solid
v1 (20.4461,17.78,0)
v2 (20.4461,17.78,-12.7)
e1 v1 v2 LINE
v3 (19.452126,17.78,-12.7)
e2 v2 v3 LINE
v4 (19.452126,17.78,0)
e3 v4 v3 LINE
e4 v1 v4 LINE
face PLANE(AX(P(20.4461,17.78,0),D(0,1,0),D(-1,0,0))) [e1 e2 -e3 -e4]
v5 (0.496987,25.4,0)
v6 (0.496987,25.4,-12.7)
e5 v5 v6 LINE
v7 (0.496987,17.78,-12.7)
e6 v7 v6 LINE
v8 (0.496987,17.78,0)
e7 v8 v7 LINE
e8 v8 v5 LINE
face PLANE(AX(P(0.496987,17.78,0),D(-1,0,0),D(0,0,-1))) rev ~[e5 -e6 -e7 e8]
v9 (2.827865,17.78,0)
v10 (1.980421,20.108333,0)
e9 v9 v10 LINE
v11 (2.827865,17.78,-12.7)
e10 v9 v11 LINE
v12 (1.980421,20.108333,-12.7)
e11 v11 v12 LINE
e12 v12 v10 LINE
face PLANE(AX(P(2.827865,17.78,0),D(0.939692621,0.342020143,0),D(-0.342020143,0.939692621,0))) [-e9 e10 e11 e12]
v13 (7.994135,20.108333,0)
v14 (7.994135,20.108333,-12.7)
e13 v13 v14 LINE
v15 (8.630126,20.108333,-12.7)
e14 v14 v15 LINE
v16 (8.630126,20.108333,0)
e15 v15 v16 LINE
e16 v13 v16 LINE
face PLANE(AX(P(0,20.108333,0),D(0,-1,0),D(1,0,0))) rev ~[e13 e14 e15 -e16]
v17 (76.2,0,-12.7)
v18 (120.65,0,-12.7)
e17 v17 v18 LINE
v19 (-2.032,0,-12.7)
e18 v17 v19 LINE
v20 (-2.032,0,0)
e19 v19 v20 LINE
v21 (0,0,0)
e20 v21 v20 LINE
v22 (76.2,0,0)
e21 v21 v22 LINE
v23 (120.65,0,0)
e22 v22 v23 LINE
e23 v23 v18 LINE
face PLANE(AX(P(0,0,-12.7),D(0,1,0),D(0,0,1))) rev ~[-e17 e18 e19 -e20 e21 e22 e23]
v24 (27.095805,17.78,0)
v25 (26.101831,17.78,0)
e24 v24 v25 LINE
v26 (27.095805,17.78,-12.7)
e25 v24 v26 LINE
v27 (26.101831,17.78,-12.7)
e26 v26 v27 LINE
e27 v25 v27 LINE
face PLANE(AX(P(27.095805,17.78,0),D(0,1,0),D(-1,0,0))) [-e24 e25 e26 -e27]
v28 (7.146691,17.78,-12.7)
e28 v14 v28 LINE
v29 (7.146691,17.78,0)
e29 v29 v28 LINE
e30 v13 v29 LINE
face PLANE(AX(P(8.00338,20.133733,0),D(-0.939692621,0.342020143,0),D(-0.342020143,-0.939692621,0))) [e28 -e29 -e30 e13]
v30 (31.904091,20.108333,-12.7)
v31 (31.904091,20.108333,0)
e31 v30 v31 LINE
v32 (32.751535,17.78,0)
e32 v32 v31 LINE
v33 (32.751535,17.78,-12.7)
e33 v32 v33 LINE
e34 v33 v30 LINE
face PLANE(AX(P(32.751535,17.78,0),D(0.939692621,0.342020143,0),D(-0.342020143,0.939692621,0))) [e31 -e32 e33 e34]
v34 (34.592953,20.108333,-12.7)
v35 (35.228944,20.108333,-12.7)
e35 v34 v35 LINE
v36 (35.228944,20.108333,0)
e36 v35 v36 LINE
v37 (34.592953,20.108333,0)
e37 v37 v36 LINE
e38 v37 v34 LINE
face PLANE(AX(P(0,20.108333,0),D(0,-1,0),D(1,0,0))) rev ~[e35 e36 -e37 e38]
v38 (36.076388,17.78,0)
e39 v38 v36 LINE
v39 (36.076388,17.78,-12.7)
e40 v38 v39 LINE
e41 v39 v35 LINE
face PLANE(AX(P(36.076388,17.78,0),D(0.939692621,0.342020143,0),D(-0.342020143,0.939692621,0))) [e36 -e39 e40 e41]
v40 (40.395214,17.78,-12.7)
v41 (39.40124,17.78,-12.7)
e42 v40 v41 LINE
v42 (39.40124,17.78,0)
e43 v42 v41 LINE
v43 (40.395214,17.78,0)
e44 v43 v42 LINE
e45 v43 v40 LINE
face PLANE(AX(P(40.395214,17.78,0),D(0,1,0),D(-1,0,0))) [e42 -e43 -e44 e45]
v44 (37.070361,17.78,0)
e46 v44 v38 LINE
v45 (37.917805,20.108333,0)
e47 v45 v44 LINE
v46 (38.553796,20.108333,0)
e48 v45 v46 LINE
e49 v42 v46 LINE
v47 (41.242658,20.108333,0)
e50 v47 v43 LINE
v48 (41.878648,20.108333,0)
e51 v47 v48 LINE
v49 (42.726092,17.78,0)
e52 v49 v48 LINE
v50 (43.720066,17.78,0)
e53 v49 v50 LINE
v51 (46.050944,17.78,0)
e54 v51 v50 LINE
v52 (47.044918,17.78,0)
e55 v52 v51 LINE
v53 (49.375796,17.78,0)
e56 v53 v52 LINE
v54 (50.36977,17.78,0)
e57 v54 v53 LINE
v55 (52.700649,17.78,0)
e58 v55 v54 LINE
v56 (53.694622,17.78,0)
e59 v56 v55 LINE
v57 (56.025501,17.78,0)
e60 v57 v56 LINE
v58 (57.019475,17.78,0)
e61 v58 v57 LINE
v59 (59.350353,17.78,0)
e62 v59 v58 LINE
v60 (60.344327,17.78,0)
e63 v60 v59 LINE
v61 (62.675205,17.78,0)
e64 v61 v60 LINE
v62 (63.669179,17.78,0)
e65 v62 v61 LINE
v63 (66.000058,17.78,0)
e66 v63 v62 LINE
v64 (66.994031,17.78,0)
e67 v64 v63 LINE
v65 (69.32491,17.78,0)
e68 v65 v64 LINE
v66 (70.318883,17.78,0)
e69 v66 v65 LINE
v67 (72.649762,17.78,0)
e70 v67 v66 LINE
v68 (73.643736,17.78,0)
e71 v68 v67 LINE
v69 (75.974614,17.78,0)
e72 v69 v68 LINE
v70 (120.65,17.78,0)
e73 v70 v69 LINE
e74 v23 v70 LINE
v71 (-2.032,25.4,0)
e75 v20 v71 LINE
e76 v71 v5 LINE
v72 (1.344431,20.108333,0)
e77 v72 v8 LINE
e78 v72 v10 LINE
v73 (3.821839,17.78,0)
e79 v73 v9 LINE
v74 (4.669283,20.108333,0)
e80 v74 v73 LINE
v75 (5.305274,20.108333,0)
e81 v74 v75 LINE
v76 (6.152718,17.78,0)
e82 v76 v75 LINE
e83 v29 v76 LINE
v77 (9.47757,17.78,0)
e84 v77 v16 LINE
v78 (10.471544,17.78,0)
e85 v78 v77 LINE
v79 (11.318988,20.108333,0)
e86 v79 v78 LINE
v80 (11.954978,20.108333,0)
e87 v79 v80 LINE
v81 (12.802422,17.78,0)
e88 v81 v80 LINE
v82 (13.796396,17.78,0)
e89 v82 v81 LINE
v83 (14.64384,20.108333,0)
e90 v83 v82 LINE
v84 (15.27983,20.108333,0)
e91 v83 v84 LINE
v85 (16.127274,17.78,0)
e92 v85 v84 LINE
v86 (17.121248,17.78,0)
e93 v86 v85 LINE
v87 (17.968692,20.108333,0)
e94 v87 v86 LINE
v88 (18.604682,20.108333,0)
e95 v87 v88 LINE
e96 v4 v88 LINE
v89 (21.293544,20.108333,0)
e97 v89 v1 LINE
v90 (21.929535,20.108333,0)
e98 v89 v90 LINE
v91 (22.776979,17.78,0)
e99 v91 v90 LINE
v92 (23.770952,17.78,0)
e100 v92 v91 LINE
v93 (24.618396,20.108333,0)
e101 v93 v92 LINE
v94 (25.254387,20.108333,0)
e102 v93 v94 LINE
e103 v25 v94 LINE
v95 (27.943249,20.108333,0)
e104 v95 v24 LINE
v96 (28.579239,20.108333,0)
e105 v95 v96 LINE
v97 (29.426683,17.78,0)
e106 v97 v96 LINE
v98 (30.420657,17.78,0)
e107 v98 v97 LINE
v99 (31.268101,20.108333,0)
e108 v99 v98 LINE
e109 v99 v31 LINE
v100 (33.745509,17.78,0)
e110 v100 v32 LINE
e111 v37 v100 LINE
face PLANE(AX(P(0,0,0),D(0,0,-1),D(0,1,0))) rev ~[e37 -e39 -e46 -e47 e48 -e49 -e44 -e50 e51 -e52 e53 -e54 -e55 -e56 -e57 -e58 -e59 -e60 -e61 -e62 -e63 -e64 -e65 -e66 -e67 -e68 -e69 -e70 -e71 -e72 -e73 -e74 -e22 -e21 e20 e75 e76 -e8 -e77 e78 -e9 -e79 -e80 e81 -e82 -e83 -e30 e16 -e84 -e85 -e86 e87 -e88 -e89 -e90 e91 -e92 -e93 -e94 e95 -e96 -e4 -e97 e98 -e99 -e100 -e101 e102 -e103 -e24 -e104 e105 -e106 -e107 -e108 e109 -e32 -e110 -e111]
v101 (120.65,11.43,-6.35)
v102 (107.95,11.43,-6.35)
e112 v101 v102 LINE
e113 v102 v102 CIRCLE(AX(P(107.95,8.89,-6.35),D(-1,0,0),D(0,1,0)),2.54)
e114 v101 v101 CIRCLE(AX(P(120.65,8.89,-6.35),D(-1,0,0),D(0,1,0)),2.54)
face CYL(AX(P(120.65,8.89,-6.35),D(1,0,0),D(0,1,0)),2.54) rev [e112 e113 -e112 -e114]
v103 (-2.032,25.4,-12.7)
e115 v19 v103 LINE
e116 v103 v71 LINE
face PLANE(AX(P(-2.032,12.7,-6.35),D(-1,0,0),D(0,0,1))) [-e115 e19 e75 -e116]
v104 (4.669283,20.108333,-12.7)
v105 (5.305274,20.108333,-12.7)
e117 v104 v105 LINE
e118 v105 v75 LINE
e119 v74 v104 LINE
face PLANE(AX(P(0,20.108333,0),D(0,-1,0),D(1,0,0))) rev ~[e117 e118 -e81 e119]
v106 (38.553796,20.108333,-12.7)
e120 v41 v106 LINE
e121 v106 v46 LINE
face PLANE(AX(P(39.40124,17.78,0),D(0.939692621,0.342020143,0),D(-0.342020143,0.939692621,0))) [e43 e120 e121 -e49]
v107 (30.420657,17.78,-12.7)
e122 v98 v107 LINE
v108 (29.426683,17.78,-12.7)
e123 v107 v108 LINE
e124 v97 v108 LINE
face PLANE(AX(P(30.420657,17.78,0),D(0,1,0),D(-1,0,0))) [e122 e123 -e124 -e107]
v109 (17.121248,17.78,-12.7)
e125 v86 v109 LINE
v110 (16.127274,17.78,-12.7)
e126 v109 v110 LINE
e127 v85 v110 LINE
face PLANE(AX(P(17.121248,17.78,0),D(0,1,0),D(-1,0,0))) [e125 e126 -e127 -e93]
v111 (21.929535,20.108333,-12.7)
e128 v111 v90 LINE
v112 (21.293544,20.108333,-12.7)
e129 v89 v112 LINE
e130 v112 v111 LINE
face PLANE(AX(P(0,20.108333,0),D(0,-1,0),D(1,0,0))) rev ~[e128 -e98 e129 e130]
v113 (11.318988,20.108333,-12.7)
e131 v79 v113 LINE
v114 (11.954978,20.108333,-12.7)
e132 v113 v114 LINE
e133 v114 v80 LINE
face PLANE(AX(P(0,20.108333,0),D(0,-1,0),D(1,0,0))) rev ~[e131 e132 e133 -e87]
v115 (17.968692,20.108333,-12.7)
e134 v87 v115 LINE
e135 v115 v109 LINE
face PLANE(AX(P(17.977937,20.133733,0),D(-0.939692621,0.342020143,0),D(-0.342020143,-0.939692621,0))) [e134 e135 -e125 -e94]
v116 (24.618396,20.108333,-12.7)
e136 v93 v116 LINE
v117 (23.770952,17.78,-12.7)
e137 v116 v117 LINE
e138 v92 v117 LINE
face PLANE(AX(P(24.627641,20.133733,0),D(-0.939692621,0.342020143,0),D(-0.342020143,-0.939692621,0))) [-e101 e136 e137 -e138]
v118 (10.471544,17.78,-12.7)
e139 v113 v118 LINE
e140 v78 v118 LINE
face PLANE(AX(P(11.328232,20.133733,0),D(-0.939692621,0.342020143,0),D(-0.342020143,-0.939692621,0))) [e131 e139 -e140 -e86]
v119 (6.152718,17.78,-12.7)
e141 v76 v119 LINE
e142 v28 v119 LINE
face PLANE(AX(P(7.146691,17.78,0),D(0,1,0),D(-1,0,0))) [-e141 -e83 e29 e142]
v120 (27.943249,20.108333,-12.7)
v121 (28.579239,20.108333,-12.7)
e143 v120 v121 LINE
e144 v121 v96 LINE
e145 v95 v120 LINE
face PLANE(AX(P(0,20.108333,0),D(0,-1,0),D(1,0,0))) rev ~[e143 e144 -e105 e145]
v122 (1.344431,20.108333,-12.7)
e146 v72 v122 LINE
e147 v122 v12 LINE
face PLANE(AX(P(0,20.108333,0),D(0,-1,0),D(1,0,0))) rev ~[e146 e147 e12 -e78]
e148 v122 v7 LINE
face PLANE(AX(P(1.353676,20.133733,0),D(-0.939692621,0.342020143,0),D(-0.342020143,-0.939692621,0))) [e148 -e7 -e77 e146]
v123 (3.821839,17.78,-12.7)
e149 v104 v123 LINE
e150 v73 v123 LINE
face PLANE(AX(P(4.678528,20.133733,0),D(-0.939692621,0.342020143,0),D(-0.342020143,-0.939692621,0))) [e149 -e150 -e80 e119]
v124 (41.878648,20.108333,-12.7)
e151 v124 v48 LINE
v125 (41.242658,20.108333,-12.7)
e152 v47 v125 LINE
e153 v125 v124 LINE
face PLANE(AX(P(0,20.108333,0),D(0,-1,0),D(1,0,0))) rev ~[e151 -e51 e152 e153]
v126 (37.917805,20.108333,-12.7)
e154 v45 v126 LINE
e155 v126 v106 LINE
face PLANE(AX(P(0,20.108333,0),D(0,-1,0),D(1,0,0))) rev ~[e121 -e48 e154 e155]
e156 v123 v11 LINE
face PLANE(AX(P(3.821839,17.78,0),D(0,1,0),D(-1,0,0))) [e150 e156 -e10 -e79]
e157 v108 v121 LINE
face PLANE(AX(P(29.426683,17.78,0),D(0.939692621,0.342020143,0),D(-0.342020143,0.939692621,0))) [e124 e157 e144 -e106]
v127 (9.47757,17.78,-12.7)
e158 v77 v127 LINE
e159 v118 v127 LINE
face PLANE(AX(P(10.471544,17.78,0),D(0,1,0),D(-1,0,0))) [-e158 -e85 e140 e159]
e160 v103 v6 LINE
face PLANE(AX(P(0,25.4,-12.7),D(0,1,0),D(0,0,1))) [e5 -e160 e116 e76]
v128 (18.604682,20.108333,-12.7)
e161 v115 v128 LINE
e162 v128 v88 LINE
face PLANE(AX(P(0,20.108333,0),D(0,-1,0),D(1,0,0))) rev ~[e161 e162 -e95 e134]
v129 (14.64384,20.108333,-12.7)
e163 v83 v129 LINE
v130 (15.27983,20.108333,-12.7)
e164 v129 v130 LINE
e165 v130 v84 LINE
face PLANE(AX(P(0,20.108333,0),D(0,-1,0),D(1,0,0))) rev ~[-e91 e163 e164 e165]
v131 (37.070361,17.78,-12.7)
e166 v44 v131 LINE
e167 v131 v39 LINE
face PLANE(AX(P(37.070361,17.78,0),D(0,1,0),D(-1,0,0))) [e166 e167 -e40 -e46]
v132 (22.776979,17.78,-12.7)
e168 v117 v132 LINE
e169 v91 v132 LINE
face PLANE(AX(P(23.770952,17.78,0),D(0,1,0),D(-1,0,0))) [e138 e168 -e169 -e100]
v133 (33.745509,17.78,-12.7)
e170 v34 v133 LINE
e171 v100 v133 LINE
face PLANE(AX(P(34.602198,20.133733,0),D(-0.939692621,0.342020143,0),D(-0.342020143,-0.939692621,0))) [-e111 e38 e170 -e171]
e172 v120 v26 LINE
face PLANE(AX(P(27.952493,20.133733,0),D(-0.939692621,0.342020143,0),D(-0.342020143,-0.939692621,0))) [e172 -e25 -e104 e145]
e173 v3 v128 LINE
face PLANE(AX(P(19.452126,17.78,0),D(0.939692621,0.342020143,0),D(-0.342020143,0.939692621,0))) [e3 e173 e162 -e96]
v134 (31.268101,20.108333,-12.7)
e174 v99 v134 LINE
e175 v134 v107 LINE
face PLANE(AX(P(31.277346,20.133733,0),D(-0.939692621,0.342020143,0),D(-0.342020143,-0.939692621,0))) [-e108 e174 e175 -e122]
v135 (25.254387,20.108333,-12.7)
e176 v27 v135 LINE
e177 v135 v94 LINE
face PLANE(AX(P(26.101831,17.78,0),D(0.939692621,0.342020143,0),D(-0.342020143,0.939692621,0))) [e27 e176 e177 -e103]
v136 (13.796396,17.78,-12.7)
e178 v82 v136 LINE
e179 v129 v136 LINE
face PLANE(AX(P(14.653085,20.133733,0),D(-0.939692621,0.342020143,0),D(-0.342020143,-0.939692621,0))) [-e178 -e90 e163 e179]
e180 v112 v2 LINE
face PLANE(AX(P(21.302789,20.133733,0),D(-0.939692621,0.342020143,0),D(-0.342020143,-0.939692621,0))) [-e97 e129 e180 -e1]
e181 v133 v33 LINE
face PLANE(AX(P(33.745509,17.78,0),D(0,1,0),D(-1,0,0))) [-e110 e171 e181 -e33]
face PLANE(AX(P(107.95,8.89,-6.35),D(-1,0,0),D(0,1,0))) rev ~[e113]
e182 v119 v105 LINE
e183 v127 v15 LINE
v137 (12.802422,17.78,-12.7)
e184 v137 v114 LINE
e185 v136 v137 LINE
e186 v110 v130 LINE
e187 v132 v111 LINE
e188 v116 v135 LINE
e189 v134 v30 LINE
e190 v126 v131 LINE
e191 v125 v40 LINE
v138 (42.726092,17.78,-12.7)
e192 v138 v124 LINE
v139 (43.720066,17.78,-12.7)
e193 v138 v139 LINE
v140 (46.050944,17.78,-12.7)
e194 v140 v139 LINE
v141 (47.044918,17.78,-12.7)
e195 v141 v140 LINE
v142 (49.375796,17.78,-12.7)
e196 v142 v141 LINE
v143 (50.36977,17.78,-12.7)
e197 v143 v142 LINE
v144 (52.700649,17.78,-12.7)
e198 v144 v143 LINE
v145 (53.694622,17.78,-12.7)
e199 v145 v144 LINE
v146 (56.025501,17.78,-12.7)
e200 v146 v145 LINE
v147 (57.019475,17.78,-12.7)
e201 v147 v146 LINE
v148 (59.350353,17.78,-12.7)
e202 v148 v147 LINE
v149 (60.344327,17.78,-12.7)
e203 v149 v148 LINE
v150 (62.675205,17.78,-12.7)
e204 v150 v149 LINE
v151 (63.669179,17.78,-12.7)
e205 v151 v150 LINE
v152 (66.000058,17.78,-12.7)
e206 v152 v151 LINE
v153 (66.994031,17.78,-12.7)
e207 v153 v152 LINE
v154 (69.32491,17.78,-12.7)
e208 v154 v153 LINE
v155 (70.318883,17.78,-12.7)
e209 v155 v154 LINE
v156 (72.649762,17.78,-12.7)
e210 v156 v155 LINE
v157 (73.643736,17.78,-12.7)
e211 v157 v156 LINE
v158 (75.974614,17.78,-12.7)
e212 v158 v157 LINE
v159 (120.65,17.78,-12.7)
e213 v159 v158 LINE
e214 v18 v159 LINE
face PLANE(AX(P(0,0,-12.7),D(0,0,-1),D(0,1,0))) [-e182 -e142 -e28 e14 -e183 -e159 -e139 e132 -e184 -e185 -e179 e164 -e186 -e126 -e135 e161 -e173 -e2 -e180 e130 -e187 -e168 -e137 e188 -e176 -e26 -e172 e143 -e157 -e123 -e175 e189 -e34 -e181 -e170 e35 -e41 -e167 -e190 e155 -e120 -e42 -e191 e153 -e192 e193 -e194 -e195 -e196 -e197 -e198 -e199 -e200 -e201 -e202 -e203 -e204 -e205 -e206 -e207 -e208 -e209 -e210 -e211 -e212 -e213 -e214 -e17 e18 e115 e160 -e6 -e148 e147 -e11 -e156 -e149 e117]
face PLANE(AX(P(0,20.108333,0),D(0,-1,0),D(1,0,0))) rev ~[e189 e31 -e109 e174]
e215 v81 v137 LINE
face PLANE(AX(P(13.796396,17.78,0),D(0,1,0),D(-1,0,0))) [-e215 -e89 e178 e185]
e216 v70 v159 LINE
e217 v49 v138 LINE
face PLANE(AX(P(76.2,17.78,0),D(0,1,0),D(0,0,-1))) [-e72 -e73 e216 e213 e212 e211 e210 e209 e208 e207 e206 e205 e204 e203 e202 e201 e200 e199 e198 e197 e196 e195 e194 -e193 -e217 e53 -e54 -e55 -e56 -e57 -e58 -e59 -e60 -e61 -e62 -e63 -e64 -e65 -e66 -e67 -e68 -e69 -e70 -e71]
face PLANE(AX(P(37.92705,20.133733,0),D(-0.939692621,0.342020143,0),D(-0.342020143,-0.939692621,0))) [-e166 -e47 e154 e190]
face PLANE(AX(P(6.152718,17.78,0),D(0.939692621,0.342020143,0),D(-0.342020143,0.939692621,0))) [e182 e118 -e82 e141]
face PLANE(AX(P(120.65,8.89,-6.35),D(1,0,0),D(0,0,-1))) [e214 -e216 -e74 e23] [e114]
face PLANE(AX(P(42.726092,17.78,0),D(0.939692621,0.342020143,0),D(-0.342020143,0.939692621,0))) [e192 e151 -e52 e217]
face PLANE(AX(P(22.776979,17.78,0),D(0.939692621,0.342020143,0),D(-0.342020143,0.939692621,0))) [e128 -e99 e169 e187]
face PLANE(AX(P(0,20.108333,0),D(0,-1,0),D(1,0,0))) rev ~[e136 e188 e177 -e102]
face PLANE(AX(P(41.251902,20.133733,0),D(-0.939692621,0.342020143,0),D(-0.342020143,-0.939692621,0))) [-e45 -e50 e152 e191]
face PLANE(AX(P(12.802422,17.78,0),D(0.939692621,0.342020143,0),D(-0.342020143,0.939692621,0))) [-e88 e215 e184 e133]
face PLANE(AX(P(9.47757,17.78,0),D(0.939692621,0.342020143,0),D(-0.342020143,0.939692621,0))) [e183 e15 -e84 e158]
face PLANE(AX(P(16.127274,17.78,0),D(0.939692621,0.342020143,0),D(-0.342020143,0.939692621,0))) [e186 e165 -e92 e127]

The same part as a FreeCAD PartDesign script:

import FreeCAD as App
import Part
import Sketcher
from FreeCAD import Vector
Q = App.Units.Quantity


def add_polygon(sketch, points):
    """Adds a closed chain of lines whose ends are joined by coincident constraints."""
    first, n = sketch.GeometryCount, len(points)
    for a, b in zip(points, points[1:] + points[:1]):
        sketch.addGeometry(Part.LineSegment(App.Vector(*a, 0), App.Vector(*b, 0)), False)
    for i in range(n):
        sketch.addConstraint(Sketcher.Constraint("Coincident", first + i, 2, first + (i + 1) % n, 1))

doc = App.newDocument("Part")
body = doc.addObject("PartDesign::Body", "Body")

sketch1 = body.newObject("Sketcher::SketchObject", "Sketch")
sketch1.AttachmentSupport = (doc.getObject("XY_Plane"), [""])
sketch1.MapMode = "FlatFace"
add_polygon(sketch1, [(0, 20), (0, 0), (76, 0), (76, 20)])
sketch1.addConstraint([
    Sketcher.Constraint("Vertical", 0),
    Sketcher.Constraint("Horizontal", 1),
    Sketcher.Constraint("Vertical", 2),
    Sketcher.Constraint("Horizontal", 3),
    Sketcher.Constraint("Coincident", 0, 2, -1, 1),
    Sketcher.Constraint("DistanceX", 1, 1, 1, 2, Q("3 in")),
    Sketcher.Constraint("DistanceY", 0, 2, 0, 1, Q("20.108333 mm")),
])
pad1 = body.newObject("PartDesign::Pad", "Pad")
pad1.Profile = sketch1
pad1.Length = Q("0.5 in")
pad1.Reversed = True

sketch2 = body.newObject("Sketcher::SketchObject", "Sketch001")
sketch2.AttachmentSupport = (doc.getObject("XY_Plane"), [""])
sketch2.MapMode = "FlatFace"
add_polygon(sketch2, [(-0.5, 17.8), (0.5, 17.8), (1.4, 20.1), (-1.4, 20.1)])
sketch2.addConstraint([
    Sketcher.Constraint("Horizontal", 0),
    Sketcher.Constraint("Horizontal", 2),
    Sketcher.Constraint("Equal", 1, 3),
    Sketcher.Constraint("Angle", 1, Q("70 deg")),
    Sketcher.Constraint("DistanceY", -1, 1, 0, 2, Q("0.7 in")),
    Sketcher.Constraint("DistanceX", 2, 2, 2, 1, Q("2.707351 mm")),
    Sketcher.Constraint("Distance", 1, Q("2.504791 mm")),
    Sketcher.Constraint("DistanceX", -1, 1, 0, 2, Q("0.496987 mm")),
])
pocket1 = body.newObject("PartDesign::Pocket", "Pocket")
pocket1.Profile = sketch2
pocket1.Type = "ThroughAll"
doc.recompute()

linearpattern = body.newObject("PartDesign::LinearPattern", "LinearPattern")
linearpattern.Originals = [pocket1]
linearpattern.Direction = (doc.getObject("X_Axis"), [""])
linearpattern.Mode = "offset"
linearpattern.Offset = 3.324852
linearpattern.Occurrences = 24
body.Tip = linearpattern

sketch3 = body.newObject("Sketcher::SketchObject", "Sketch002")
sketch3.AttachmentSupport = (doc.getObject("YZ_Plane"), [""])
sketch3.MapMode = "FlatFace"
sketch3.AttachmentOffset = App.Placement(Vector(0, 0, 3 * 25.4), App.Rotation())
add_polygon(sketch3, [(18, 0), (0, 0), (0, -13), (18, -13)])
sketch3.addConstraint([
    Sketcher.Constraint("Horizontal", 0),
    Sketcher.Constraint("Vertical", 1),
    Sketcher.Constraint("Horizontal", 2),
    Sketcher.Constraint("Vertical", 3),
    Sketcher.Constraint("Coincident", 0, 2, -1, 1),
    Sketcher.Constraint("DistanceX", 0, 2, 0, 1, Q("0.7 in")),
    Sketcher.Constraint("DistanceY", 1, 2, 1, 1, Q("0.5 in")),
])
pad2 = body.newObject("PartDesign::Pad", "Pad001")
pad2.Profile = sketch3
pad2.Length = Q("1.75 in")

sketch4 = body.newObject("Sketcher::SketchObject", "Sketch003")
sketch4.AttachmentSupport = (doc.getObject("YZ_Plane"), [""])
sketch4.MapMode = "FlatFace"
sketch4.AttachmentOffset = App.Placement(Vector(0, 0, 4.75 * 25.4), App.Rotation())
sketch4.addGeometry(Part.Circle(Vector(8.9, -6.3, 0), Vector(0, 0, 1), 2.5), False)
sketch4.addConstraint([
    Sketcher.Constraint("Diameter", 0, Q("0.2 in")),
    Sketcher.Constraint("DistanceX", -1, 1, 0, 3, Q("0.35 in")),
    Sketcher.Constraint("DistanceY", 0, 3, -1, 1, Q("0.25 in")),
])
pocket2 = body.newObject("PartDesign::Pocket", "Pocket001")
pocket2.Profile = sketch4
pocket2.Length = Q("0.5 in")

sketch5 = body.newObject("Sketcher::SketchObject", "Sketch004")
sketch5.AttachmentSupport = (doc.getObject("XZ_Plane"), [""])
sketch5.MapMode = "FlatFace"
sketch5.AttachmentOffset = App.Placement(Vector(0, 0, -0.7 * 25.4), App.Rotation())
add_polygon(sketch5, [(0, -12.7), (0, 0), (0.5, 0), (0.5, -12.7)])
sketch5.addConstraint([
    Sketcher.Constraint("Vertical", 0),
    Sketcher.Constraint("Horizontal", 1),
    Sketcher.Constraint("Vertical", 2),
    Sketcher.Constraint("Horizontal", 3),
    Sketcher.Constraint("Coincident", 0, 2, -1, 1),
    Sketcher.Constraint("DistanceY", 0, 1, 0, 2, Q("0.5 in")),
    Sketcher.Constraint("DistanceX", 1, 1, 1, 2, Q("0.496987 mm")),
])
pad3 = body.newObject("PartDesign::Pad", "Pad002")
pad3.Profile = sketch5
pad3.Length = Q("0.3 in")
pad3.Reversed = True

sketch6 = body.newObject("Sketcher::SketchObject", "Sketch005")
sketch6.AttachmentSupport = (doc.getObject("YZ_Plane"), [""])
sketch6.MapMode = "FlatFace"
add_polygon(sketch6, [(25, -13), (0, -13), (0, 0), (25, 0)])
sketch6.addConstraint([
    Sketcher.Constraint("Horizontal", 0),
    Sketcher.Constraint("Vertical", 1),
    Sketcher.Constraint("Horizontal", 2),
    Sketcher.Constraint("Vertical", 3),
    Sketcher.Constraint("Coincident", 1, 2, -1, 1),
    Sketcher.Constraint("DistanceX", 0, 2, 0, 1, Q("1 in")),
    Sketcher.Constraint("DistanceY", 1, 1, 1, 2, Q("0.5 in")),
])
pad4 = body.newObject("PartDesign::Pad", "Pad003")
pad4.Profile = sketch6
pad4.Length = Q("0.08 in")
pad4.Reversed = True

sketch7 = body.newObject("Sketcher::SketchObject", "Sketch006")
sketch7.AttachmentSupport = (doc.getObject("YZ_Plane"), [""])
sketch7.MapMode = "FlatFace"
sketch7.AttachmentOffset = App.Placement(Vector(0, 0, 4.75 * 25.4), App.Rotation())
add_polygon(sketch7, [(20.1, 0), (17.8, 0), (17.8, -12.7), (20.1, -12.7)])
sketch7.addConstraint([
    Sketcher.Constraint("Horizontal", 0),
    Sketcher.Constraint("Vertical", 1),
    Sketcher.Constraint("Horizontal", 2),
    Sketcher.Constraint("Vertical", 3),
    Sketcher.Constraint("PointOnObject", 0, 2, -1),
    Sketcher.Constraint("DistanceY", 1, 2, 1, 1, Q("0.5 in")),
    Sketcher.Constraint("DistanceX", -1, 1, 0, 2, Q("0.7 in")),
    Sketcher.Constraint("DistanceX", 0, 2, 0, 1, Q("2.328333 mm")),
])
pocket3 = body.newObject("PartDesign::Pocket", "Pocket002")
pocket3.Profile = sketch7
pocket3.Length = Q("3.03 in")

doc.recompute()
